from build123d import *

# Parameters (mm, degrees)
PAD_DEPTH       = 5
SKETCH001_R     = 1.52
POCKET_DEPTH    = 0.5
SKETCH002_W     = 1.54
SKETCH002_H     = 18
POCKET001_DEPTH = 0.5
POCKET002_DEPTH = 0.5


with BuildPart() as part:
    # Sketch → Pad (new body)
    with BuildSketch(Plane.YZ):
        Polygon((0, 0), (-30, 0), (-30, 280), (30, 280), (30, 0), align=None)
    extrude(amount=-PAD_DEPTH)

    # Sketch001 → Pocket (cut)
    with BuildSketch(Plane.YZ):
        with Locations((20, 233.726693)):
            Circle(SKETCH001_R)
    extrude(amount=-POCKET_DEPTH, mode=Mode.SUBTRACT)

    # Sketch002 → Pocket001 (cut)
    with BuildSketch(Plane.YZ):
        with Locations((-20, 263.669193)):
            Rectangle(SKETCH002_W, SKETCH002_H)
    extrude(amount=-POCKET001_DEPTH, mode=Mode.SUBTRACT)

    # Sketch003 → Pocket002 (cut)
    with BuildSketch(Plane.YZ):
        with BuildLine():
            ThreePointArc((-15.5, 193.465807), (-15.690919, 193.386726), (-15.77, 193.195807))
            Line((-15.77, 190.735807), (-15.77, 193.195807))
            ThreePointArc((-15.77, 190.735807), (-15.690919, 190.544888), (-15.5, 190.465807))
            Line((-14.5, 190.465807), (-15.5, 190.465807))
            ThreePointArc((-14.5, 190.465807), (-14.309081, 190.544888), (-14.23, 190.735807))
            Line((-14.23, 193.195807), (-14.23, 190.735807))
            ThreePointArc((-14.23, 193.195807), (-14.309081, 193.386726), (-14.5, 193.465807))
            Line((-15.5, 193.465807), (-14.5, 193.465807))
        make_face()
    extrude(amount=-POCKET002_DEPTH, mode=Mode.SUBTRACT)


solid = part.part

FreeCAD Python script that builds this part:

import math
import FreeCAD as App
import Part
import Sketcher

V = App.Vector
Q = App.Units.Quantity


def add_polygon(sketch, points):
    """Adds a closed chain of lines whose ends are joined by coincident constraints."""
    first, n = sketch.GeometryCount, len(points)
    for a, b in zip(points, points[1:] + points[:1]):
        sketch.addGeometry(Part.LineSegment(App.Vector(*a, 0), App.Vector(*b, 0)), False)
    for i in range(n):
        sketch.addConstraint(Sketcher.Constraint("Coincident", first + i, 2, first + (i + 1) % n, 1))

doc = App.newDocument("Part")
body = doc.addObject("PartDesign::Body", "Body")

sketch1 = body.newObject("Sketcher::SketchObject", "Sketch")
sketch1.AttachmentSupport = (doc.getObject("YZ_Plane"), [""])
sketch1.MapMode = "FlatFace"
add_polygon(sketch1, [(-30, 0), (30, 0), (30, 280), (-30, 280)])
sketch1.addConstraint([
    Sketcher.Constraint("Horizontal", 0),
    Sketcher.Constraint("Vertical", 1),
    Sketcher.Constraint("Horizontal", 2),
    Sketcher.Constraint("Vertical", 3),
    Sketcher.Constraint("Symmetric", 0, 2, 3, 2, -1, 1),
    Sketcher.Constraint("DistanceX", 0, 1, 0, 2, Q("60 mm")),
    Sketcher.Constraint("DistanceY", 1, 1, 1, 2, Q("280 mm")),
])
pad1 = body.newObject("PartDesign::Pad", "Pad")
pad1.Profile = sketch1
pad1.Length = 5
pad1.Reversed = True

sketch2 = body.newObject("Sketcher::SketchObject", "Sketch001")
sketch2.AttachmentSupport = (doc.getObject("YZ_Plane"), [""])
sketch2.MapMode = "FlatFace"
sketch2.addGeometry(Part.Circle(V(20, 233.7, 0), V(0, 0, 1), 1.5), False)
sketch2.addConstraint([
    Sketcher.Constraint("Diameter", 0, Q("3.04 mm")),
    Sketcher.Constraint("DistanceX", -1, 1, 0, 3, Q("20 mm")),
    Sketcher.Constraint("DistanceY", -1, 1, 0, 3, Q("233.726693 mm")),
])
pocket1 = body.newObject("PartDesign::Pocket", "Pocket")
pocket1.Profile = sketch2
pocket1.Length = 0.5

sketch3 = body.newObject("Sketcher::SketchObject", "Sketch002")
sketch3.AttachmentSupport = (doc.getObject("YZ_Plane"), [""])
sketch3.MapMode = "FlatFace"
add_polygon(sketch3, [(-20.8, 272.7), (-20.8, 254.7), (-19.2, 254.7), (-19.2, 272.7)])
sketch3.addConstraint([
    Sketcher.Constraint("Vertical", 0),
    Sketcher.Constraint("Horizontal", 1),
    Sketcher.Constraint("Vertical", 2),
    Sketcher.Constraint("Horizontal", 3),
    Sketcher.Constraint("DistanceY", 0, 2, 0, 1, Q("18 mm")),
    Sketcher.Constraint("DistanceX", 1, 1, 1, 2, Q("1.54 mm")),
    Sketcher.Constraint("DistanceX", 0, 2, -1, 1, Q("20.77 mm")),
    Sketcher.Constraint("DistanceY", -1, 1, 0, 2, Q("254.669193 mm")),
])
pocket2 = body.newObject("PartDesign::Pocket", "Pocket001")
pocket2.Profile = sketch3
pocket2.Length = 0.5

sketch4 = body.newObject("Sketcher::SketchObject", "Sketch003")
sketch4.AttachmentSupport = (doc.getObject("YZ_Plane"), [""])
sketch4.MapMode = "FlatFace"
sketch4.addGeometry([
    Part.ArcOfCircle(Part.Circle(V(-15.5, 193.2, 0), V(0, 0, 1), 0.27), math.radians(90), math.radians(180)),
    Part.LineSegment(V(-15.77, 193.2, 0), V(-15.77, 190.74, 0)),
    Part.ArcOfCircle(Part.Circle(V(-15.5, 190.74, 0), V(0, 0, 1), 0.27), math.radians(180), math.radians(270)),
    Part.LineSegment(V(-15.5, 190.47, 0), V(-14.5, 190.47, 0)),
    Part.ArcOfCircle(Part.Circle(V(-14.5, 190.74, 0), V(0, 0, 1), 0.27), math.radians(-90), math.radians(0)),
    Part.LineSegment(V(-14.23, 190.74, 0), V(-14.23, 193.2, 0)),
    Part.ArcOfCircle(Part.Circle(V(-14.5, 193.2, 0), V(0, 0, 1), 0.27), math.radians(0), math.radians(90)),
    Part.LineSegment(V(-14.5, 193.47, 0), V(-15.5, 193.47, 0)),
], False)
sketch4.addConstraint([
    Sketcher.Constraint("Coincident", 0, 2, 1, 1),
    Sketcher.Constraint("Coincident", 1, 2, 2, 1),
    Sketcher.Constraint("Coincident", 2, 2, 3, 1),
    Sketcher.Constraint("Coincident", 3, 2, 4, 1),
    Sketcher.Constraint("Coincident", 4, 2, 5, 1),
    Sketcher.Constraint("Coincident", 5, 2, 6, 1),
    Sketcher.Constraint("Coincident", 6, 2, 7, 1),
    Sketcher.Constraint("Coincident", 7, 2, 0, 1),
    Sketcher.Constraint("Vertical", 1),
    Sketcher.Constraint("Horizontal", 3),
    Sketcher.Constraint("Vertical", 5),
    Sketcher.Constraint("Horizontal", 7),
    Sketcher.Constraint("Equal", 0, 2),
    Sketcher.Constraint("Equal", 2, 4),
    Sketcher.Constraint("Equal", 4, 6),
    Sketcher.Constraint("Horizontal", 6, 3, 0, 2),
    Sketcher.Constraint("Horizontal", 4, 3, 1, 2),
    Sketcher.Constraint("Horizontal", 1, 2, 4, 2),
    Sketcher.Constraint("Horizontal", 0, 2, 5, 2),
    Sketcher.Constraint("Vertical", 0, 3, 2, 2),
    Sketcher.Constraint("Vertical", 6, 3, 3, 2),
    Sketcher.Constraint("Vertical", 3, 2, 6, 2),
    Sketcher.Constraint("Vertical", 2, 2, 7, 2),
    Sketcher.Constraint("DistanceX", 3, 1, 3, 2, Q("1 mm")),
    Sketcher.Constraint("Radius", 0, Q("0.269999 mm")),
    Sketcher.Constraint("DistanceY", 1, 2, 1, 1, Q("2.46 mm")),
    Sketcher.Constraint("DistanceX", 0, 3, -1, 1, Q("15.500001 mm")),
    Sketcher.Constraint("DistanceY", -1, 1, 0, 3, Q("193.195808 mm")),
])
pocket3 = body.newObject("PartDesign::Pocket", "Pocket002")
pocket3.Profile = sketch4
pocket3.Length = 0.5

doc.recompute()
